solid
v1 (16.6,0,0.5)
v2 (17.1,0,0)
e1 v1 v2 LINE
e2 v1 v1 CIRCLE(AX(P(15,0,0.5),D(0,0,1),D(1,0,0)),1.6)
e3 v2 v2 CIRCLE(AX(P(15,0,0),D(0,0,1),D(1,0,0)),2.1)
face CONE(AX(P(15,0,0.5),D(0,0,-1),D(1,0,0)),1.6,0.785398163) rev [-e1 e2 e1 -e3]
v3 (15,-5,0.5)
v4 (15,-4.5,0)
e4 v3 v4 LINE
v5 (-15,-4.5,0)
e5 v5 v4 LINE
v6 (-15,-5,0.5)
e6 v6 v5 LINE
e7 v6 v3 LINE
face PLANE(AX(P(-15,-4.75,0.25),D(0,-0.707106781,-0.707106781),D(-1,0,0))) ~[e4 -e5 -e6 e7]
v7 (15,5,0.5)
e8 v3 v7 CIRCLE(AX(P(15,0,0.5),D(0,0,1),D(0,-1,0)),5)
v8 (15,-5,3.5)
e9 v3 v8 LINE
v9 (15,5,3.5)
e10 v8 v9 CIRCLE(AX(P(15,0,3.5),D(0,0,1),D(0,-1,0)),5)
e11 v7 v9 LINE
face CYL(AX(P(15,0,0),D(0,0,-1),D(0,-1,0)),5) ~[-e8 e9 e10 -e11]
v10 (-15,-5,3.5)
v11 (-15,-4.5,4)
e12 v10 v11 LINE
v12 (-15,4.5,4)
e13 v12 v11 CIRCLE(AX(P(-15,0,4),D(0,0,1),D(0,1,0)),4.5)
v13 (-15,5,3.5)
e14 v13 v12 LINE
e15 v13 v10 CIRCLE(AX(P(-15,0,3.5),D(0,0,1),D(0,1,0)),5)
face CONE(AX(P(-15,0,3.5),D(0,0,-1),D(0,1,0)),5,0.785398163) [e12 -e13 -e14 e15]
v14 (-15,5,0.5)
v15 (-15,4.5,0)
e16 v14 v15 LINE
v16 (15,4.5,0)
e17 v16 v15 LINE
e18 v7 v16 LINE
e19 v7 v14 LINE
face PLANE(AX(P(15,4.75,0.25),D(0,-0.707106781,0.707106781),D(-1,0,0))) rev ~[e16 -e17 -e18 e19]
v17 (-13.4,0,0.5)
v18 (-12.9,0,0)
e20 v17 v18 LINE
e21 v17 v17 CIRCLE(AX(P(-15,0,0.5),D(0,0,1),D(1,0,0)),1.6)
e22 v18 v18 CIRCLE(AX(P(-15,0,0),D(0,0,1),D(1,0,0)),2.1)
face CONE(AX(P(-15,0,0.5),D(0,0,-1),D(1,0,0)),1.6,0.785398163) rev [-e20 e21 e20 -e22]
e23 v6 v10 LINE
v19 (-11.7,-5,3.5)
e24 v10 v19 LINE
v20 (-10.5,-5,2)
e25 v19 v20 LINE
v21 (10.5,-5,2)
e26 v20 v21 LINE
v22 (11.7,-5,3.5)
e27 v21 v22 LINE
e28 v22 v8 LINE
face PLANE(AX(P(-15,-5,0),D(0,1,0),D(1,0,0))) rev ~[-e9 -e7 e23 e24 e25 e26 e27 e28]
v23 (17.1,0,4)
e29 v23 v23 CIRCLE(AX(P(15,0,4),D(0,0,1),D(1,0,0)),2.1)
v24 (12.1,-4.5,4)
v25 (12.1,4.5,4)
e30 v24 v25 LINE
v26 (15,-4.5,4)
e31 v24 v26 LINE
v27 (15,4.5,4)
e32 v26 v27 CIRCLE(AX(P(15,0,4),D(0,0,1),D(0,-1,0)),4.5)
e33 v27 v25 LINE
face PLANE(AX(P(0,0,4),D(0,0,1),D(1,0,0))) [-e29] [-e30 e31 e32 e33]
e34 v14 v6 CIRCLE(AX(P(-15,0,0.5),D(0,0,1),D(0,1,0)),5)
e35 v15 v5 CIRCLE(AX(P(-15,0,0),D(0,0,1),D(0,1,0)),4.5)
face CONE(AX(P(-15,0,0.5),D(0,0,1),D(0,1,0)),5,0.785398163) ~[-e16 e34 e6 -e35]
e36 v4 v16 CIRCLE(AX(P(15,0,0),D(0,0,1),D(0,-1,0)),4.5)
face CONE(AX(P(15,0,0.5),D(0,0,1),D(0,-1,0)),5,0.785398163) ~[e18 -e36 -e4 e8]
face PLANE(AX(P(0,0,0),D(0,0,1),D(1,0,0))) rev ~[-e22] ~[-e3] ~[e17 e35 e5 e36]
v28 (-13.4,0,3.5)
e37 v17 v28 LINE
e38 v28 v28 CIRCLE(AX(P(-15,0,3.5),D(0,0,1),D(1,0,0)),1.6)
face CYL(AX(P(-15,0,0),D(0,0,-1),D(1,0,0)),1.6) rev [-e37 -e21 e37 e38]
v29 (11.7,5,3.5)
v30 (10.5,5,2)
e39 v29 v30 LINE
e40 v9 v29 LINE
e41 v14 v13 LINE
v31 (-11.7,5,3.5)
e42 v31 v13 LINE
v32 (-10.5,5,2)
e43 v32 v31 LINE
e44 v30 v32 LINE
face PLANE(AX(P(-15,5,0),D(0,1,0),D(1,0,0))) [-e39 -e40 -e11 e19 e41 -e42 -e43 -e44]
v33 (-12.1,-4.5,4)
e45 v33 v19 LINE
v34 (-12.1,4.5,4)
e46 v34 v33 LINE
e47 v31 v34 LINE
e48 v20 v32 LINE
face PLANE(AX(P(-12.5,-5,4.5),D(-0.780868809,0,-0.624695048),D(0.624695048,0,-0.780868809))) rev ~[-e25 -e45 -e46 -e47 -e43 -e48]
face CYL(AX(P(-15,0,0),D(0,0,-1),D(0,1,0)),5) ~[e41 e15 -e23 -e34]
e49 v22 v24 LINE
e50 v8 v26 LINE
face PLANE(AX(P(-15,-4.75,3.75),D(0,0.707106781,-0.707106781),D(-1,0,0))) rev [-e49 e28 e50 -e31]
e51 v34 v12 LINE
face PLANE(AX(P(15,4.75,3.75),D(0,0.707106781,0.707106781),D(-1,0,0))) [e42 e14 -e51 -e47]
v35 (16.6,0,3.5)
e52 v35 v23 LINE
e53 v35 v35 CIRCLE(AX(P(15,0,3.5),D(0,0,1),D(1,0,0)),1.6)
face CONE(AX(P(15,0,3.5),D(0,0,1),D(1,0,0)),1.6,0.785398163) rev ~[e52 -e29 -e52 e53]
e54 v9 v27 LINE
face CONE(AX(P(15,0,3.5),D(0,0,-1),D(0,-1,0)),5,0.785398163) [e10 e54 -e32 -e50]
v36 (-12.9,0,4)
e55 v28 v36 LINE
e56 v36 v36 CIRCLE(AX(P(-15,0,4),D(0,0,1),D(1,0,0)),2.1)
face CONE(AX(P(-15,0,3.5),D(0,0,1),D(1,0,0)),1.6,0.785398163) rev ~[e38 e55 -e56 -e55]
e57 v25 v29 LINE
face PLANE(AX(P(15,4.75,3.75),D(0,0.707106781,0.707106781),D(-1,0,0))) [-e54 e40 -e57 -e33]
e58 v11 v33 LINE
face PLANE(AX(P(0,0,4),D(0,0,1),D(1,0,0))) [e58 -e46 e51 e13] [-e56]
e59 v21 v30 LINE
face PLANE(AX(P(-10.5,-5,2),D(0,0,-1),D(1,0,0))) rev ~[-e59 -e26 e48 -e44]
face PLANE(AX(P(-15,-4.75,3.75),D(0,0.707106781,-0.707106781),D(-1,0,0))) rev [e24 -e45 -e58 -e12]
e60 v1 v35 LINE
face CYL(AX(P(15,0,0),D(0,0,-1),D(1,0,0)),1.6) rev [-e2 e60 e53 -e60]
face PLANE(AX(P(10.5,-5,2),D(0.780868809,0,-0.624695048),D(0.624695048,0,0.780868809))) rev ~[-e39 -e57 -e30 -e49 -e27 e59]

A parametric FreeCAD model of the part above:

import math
import FreeCAD as App
import Part
import Sketcher


def edges_at(feature, points):
    """Names of the edges that pass closest to the given points."""
    edges = feature.Shape.Edges
    near = lambda p: min(range(len(edges)), key=lambda i: edges[i].distToShape(Part.Vertex(*p))[0])
    return sorted({f"Edge{near(p) + 1}" for p in points})

doc = App.newDocument("Part")
body = doc.addObject("PartDesign::Body", "Body")

sketch1 = body.newObject("Sketcher::SketchObject", "Sketch")
sketch1.AttachmentSupport = (doc.getObject("XY_Plane"), [""])
sketch1.MapMode = "FlatFace"
sketch1.addGeometry([
    Part.ArcOfCircle(Part.Circle(App.Vector(-15, 0, 0), App.Vector(0, 0, 1), 5), math.radians(90), math.radians(270)),
    Part.LineSegment(App.Vector(-15, -5, 0), App.Vector(15, -5, 0)),
    Part.ArcOfCircle(Part.Circle(App.Vector(15, 0, 0), App.Vector(0, 0, 1), 5), math.radians(-90), math.radians(90)),
    Part.LineSegment(App.Vector(15, 5, 0), App.Vector(-15, 5, 0)),
    Part.Circle(App.Vector(-15, 0, 0), App.Vector(0, 0, 1), 1.6),
    Part.Circle(App.Vector(15, 0, 0), App.Vector(0, 0, 1), 1.6),
], False)
sketch1.addConstraint([
    Sketcher.Constraint("Tangent", 0, 2, 1, 1),
    Sketcher.Constraint("Tangent", 1, 2, 2, 1),
    Sketcher.Constraint("Tangent", 2, 2, 3, 1),
    Sketcher.Constraint("Tangent", 3, 2, 0, 1),
    Sketcher.Constraint("Horizontal", 1),
    Sketcher.Constraint("Horizontal", 3),
    Sketcher.Constraint("Coincident", 4, 3, 0, 3),
    Sketcher.Constraint("Coincident", 5, 3, 2, 3),
    Sketcher.Constraint("Equal", 4, 5),
    Sketcher.Constraint("Symmetric", 0, 3, 2, 3, -1, 1),
    Sketcher.Constraint("Radius", 0, 5.0),
    Sketcher.Constraint("Diameter", 4, 3.2),
    Sketcher.Constraint("DistanceX", 1, 1, 1, 2, 30.0),
])
pad1 = body.newObject("PartDesign::Pad", "Pad")
pad1.Profile = sketch1
pad1.Length = 4
doc.recompute()

chamfer = body.newObject("PartDesign::Chamfer", "Chamfer")
chamfer.Base = (pad1, edges_at(pad1, [
    (-20, 0, 4),
    (0, -5, 4),
    (20, 0, 4),
    (0, 5, 4),
    (13.4, 0, 4),
    (-16.6, 0, 4),
    (-20, 0, 0),
    (0, -5, 0),
    (20, 0, 0),
    (0, 5, 0),
    (13.4, 0, 0),
    (-16.6, 0, 0),
]))
chamfer.Size = 0.5

sketch2 = body.newObject("Sketcher::SketchObject", "Sketch001")
sketch2.AttachmentSupport = (doc.getObject("XZ_Plane"), [""])
sketch2.MapMode = "FlatFace"
sketch2.AttachmentOffset = App.Placement(App.Vector(0, 0, 5), App.Rotation())
sketch2.addGeometry([
    Part.LineSegment(App.Vector(-12.5, 4.5, 0), App.Vector(-10.5, 2, 0)),
    Part.LineSegment(App.Vector(-10.5, 2, 0), App.Vector(10.5, 2, 0)),
    Part.LineSegment(App.Vector(10.5, 2, 0), App.Vector(12.5, 4.5, 0)),
    Part.LineSegment(App.Vector(12.5, 4.5, 0), App.Vector(-12.5, 4.5, 0)),
], False)
sketch2.addConstraint([
    Sketcher.Constraint("Coincident", 0, 2, 1, 1),
    Sketcher.Constraint("Coincident", 1, 2, 2, 1),
    Sketcher.Constraint("Coincident", 2, 2, 3, 1),
    Sketcher.Constraint("Coincident", 3, 2, 0, 1),
    Sketcher.Constraint("Horizontal", 1),
    Sketcher.Constraint("Horizontal", 3),
    Sketcher.Constraint("Equal", 0, 2),
    Sketcher.Constraint("DistanceX", 1, 1, 1, 2, 21.0),
    Sketcher.Constraint("DistanceX", 3, 2, 3, 1, 25.0),
    Sketcher.Constraint("DistanceY", -1, 1, 0, 2, 2.0),
    Sketcher.Constraint("DistanceX", 0, 2, -1, 1, 10.5),
    Sketcher.Constraint("DistanceY", -1, 1, 2, 2, 4.5),
])
pocket1 = body.newObject("PartDesign::Pocket", "Pocket")
pocket1.Profile = sketch2
pocket1.Type = "ThroughAll"

doc.recompute()
